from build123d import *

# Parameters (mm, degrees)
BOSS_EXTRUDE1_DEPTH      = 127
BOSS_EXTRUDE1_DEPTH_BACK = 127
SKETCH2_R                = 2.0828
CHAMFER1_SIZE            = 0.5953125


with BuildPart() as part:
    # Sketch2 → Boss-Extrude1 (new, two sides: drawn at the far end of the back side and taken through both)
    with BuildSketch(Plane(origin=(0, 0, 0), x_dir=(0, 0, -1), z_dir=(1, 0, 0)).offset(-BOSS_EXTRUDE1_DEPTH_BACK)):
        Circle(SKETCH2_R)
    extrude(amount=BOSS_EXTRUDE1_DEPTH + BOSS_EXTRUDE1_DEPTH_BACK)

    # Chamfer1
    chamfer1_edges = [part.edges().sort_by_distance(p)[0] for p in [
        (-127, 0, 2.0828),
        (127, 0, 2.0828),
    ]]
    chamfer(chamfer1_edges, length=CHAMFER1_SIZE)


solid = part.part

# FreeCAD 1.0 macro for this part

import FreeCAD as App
import Part
import Sketcher
Q = App.Units.Quantity


def edges_at(feature, points):
    """Names of the edges that pass closest to the given points."""
    edges = feature.Shape.Edges
    near = lambda p: min(range(len(edges)), key=lambda i: edges[i].distToShape(Part.Vertex(*p))[0])
    return sorted({f"Edge{near(p) + 1}" for p in points})

doc = App.newDocument("Part")
body = doc.addObject("PartDesign::Body", "Body")

# Sketch on YZ plane
sketch1 = body.newObject("Sketcher::SketchObject", "Sketch")
sketch1.AttachmentSupport = (doc.getObject("YZ_Plane"), [""])
sketch1.MapMode = "FlatFace"
sketch1.addGeometry(Part.Circle(App.Vector(0, 0, 0), App.Vector(0, 0, 1), 2.1), False)
sketch1.addConstraint([
    Sketcher.Constraint("Coincident", 0, 3, -1, 1),
    Sketcher.Constraint("Diameter", 0, Q("0.164 in")),
])
pad1 = body.newObject("PartDesign::Pad", "Pad")
pad1.Profile = sketch1
pad1.Type = "TwoLengths"
pad1.Length = Q("5 in")
pad1.Length2 = Q("5 in")
doc.recompute()

chamfer = body.newObject("PartDesign::Chamfer", "Chamfer")
chamfer.Base = (pad1, edges_at(pad1, [(-127, 0, 2.083), (127, 0, 2.083)]))
chamfer.Size = 0.595313

doc.recompute()
